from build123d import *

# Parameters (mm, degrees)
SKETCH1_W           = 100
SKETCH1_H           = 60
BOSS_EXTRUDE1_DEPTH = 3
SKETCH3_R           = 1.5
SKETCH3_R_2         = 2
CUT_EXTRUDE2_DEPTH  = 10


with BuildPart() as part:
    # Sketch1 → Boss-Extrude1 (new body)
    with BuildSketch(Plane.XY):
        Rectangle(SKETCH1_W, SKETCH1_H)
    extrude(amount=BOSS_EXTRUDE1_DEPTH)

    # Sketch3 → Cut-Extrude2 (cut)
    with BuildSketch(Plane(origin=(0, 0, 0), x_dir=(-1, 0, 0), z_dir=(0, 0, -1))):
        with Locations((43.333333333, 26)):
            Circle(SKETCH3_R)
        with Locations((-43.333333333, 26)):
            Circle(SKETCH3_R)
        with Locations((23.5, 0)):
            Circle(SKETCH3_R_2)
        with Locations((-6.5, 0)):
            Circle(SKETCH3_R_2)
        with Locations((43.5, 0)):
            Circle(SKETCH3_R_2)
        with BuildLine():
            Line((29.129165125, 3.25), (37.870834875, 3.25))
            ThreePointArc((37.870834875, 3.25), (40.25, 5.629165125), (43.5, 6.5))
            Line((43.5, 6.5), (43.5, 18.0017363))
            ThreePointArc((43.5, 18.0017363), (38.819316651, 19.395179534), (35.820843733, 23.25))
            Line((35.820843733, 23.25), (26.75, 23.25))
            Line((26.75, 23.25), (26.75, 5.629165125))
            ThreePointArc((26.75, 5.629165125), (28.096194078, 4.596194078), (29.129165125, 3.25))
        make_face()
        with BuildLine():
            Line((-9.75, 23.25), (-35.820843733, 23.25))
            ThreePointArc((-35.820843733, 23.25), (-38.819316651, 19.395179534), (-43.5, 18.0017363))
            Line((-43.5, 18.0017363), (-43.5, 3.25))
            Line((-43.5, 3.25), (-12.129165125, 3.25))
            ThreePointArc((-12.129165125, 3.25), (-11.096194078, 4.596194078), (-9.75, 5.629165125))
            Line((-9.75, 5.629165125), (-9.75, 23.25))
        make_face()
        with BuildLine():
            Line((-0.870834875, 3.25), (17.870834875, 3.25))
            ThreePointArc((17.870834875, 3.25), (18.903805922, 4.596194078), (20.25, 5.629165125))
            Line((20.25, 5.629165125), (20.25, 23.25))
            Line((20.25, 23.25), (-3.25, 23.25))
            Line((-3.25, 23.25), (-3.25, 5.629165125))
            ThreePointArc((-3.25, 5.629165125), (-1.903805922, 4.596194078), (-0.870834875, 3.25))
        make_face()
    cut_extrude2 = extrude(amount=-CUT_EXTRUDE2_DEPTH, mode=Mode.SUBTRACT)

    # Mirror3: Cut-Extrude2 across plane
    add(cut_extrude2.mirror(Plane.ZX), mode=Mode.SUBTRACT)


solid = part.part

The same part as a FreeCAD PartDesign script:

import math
import FreeCAD as App
import Part
import Sketcher
from FreeCAD import Vector
Q = App.Units.Quantity

doc = App.newDocument("Part")
params = doc.addObject("Spreadsheet::Sheet", "Params")
for row, (alias, value) in enumerate([
    ("sketch1_width", "100 mm"),
    ("sketch1_height", "60 mm"),
    ("pad1_length", "3 mm"),
    ("sketch2_diameter", "3 mm"),
    ("sketch2_diameter2", "4 mm"),
    ("sketch2_radius", "8 mm"),
    ("sketch2_radius2", "6.5 mm"),
    ("sketch2_width", "23.5 mm"),
    ("pocket1_length", "10 mm"),
], start=1):
    params.set(f"A{row}", alias)
    params.set(f"B{row}", "=" + value)
    params.setAlias(f"B{row}", alias)

body = doc.addObject("PartDesign::Body", "Body")

sketch1 = body.newObject("Sketcher::SketchObject", "Sketch")
sketch1.AttachmentSupport = (doc.getObject("XY_Plane"), [""])
sketch1.MapMode = "FlatFace"
sketch1.addGeometry([
    Part.LineSegment(Vector(-50, 30, 0), Vector(-50, -30, 0)),
    Part.LineSegment(Vector(-50, -30, 0), Vector(50, -30, 0)),
    Part.LineSegment(Vector(50, -30, 0), Vector(50, 30, 0)),
    Part.LineSegment(Vector(50, 30, 0), Vector(-50, 30, 0)),
], False)
sketch1.addConstraint([
    Sketcher.Constraint("Coincident", 0, 2, 1, 1),
    Sketcher.Constraint("Coincident", 1, 2, 2, 1),
    Sketcher.Constraint("Coincident", 2, 2, 3, 1),
    Sketcher.Constraint("Coincident", 3, 2, 0, 1),
    Sketcher.Constraint("Vertical", 0),
    Sketcher.Constraint("Horizontal", 1),
    Sketcher.Constraint("Vertical", 2),
    Sketcher.Constraint("Horizontal", 3),
    Sketcher.Constraint("Symmetric", 0, 2, 2, 2, -1, 1),
    Sketcher.Constraint("DistanceX", 1, 1, 1, 2, Q("100 mm")),
    Sketcher.Constraint("DistanceY", 0, 2, 0, 1, Q("60 mm")),
])
sketch1.setExpression("Constraints[9]", "Params.sketch1_width")
sketch1.setExpression("Constraints[10]", "Params.sketch1_height")
pad1 = body.newObject("PartDesign::Pad", "Pad")
pad1.Profile = sketch1
pad1.setExpression("Length", "Params.pad1_length")

sketch2 = body.newObject("Sketcher::SketchObject", "Sketch001")
sketch2.AttachmentSupport = (doc.getObject("XY_Plane"), [""])
sketch2.MapMode = "FlatFace"
sketch2.addGeometry([
    Part.Circle(Vector(-43.3, 26, 0), Vector(0, 0, 1), 1.5),
    Part.Circle(Vector(43.3, 26, 0), Vector(0, 0, 1), 1.5),
    Part.Circle(Vector(-23.5, 0, 0), Vector(0, 0, 1), 2),
    Part.Circle(Vector(6.5, 0, 0), Vector(0, 0, 1), 2),
    Part.Circle(Vector(-43.5, 0, 0), Vector(0, 0, 1), 2),
    Part.LineSegment(Vector(-29.1, 3.2, 0), Vector(-37.9, 3.2, 0)),
    Part.ArcOfCircle(Part.Circle(Vector(-43.5, 0, 0), Vector(0, 0, 1), 6.5), math.radians(30), math.radians(90)),
    Part.LineSegment(Vector(-43.5, 6.5, 0), Vector(-43.5, 18, 0)),
    Part.ArcOfCircle(Part.Circle(Vector(-43.3, 26, 0), Vector(0, 0, 1), 8), math.radians(-91), math.radians(-20)),
    Part.LineSegment(Vector(-35.8, 23.2, 0), Vector(-26.8, 23.2, 0)),
    Part.LineSegment(Vector(-26.8, 23.2, 0), Vector(-26.8, 5.6, 0)),
    Part.ArcOfCircle(Part.Circle(Vector(-23.5, 0, 0), Vector(0, 0, 1), 6.5), math.radians(120), math.radians(150)),
    Part.LineSegment(Vector(9.8, 23.2, 0), Vector(35.8, 23.2, 0)),
    Part.ArcOfCircle(Part.Circle(Vector(43.3, 26, 0), Vector(0, 0, 1), 8), math.radians(-160), math.radians(-89)),
    Part.LineSegment(Vector(43.5, 18, 0), Vector(43.5, 3.2, 0)),
    Part.LineSegment(Vector(43.5, 3.2, 0), Vector(12.1, 3.2, 0)),
    Part.ArcOfCircle(Part.Circle(Vector(6.5, 0, 0), Vector(0, 0, 1), 6.5), math.radians(30), math.radians(60)),
    Part.LineSegment(Vector(9.8, 5.6, 0), Vector(9.8, 23.2, 0)),
    Part.LineSegment(Vector(0.9, 3.2, 0), Vector(-17.9, 3.2, 0)),
    Part.ArcOfCircle(Part.Circle(Vector(-23.5, 0, 0), Vector(0, 0, 1), 6.5), math.radians(30), math.radians(60)),
    Part.LineSegment(Vector(-20.2, 5.6, 0), Vector(-20.2, 23.2, 0)),
    Part.LineSegment(Vector(-20.2, 23.2, 0), Vector(3.2, 23.2, 0)),
    Part.LineSegment(Vector(3.2, 23.2, 0), Vector(3.2, 5.6, 0)),
    Part.ArcOfCircle(Part.Circle(Vector(6.5, 0, 0), Vector(0, 0, 1), 6.5), math.radians(120), math.radians(150)),
], False)
sketch2.addConstraint([
    Sketcher.Constraint("Coincident", 5, 2, 6, 1),
    Sketcher.Constraint("Coincident", 6, 2, 7, 1),
    Sketcher.Constraint("Coincident", 7, 2, 8, 1),
    Sketcher.Constraint("Coincident", 8, 2, 9, 1),
    Sketcher.Constraint("Coincident", 9, 2, 10, 1),
    Sketcher.Constraint("Coincident", 10, 2, 11, 1),
    Sketcher.Constraint("Coincident", 11, 2, 5, 1),
    Sketcher.Constraint("Coincident", 12, 2, 13, 1),
    Sketcher.Constraint("Coincident", 13, 2, 14, 1),
    Sketcher.Constraint("Coincident", 14, 2, 15, 1),
    Sketcher.Constraint("Coincident", 15, 2, 16, 1),
    Sketcher.Constraint("Coincident", 16, 2, 17, 1),
    Sketcher.Constraint("Coincident", 17, 2, 12, 1),
    Sketcher.Constraint("Coincident", 18, 2, 19, 1),
    Sketcher.Constraint("Coincident", 19, 2, 20, 1),
    Sketcher.Constraint("Coincident", 20, 2, 21, 1),
    Sketcher.Constraint("Coincident", 21, 2, 22, 1),
    Sketcher.Constraint("Coincident", 22, 2, 23, 1),
    Sketcher.Constraint("Coincident", 23, 2, 18, 1),
    Sketcher.Constraint("Horizontal", 5),
    Sketcher.Constraint("Vertical", 7),
    Sketcher.Constraint("Horizontal", 9),
    Sketcher.Constraint("Vertical", 10),
    Sketcher.Constraint("Horizontal", 12),
    Sketcher.Constraint("Vertical", 14),
    Sketcher.Constraint("Horizontal", 15),
    Sketcher.Constraint("Vertical", 17),
    Sketcher.Constraint("Horizontal", 18),
    Sketcher.Constraint("Vertical", 20),
    Sketcher.Constraint("Horizontal", 21),
    Sketcher.Constraint("Vertical", 22),
    Sketcher.Constraint("Coincident", 6, 3, 4, 3),
    Sketcher.Constraint("Coincident", 8, 3, 0, 3),
    Sketcher.Constraint("Coincident", 11, 3, 2, 3),
    Sketcher.Constraint("Coincident", 13, 3, 1, 3),
    Sketcher.Constraint("Coincident", 16, 3, 3, 3),
    Sketcher.Constraint("Coincident", 19, 3, 2, 3),
    Sketcher.Constraint("Coincident", 23, 3, 3, 3),
    Sketcher.Constraint("Equal", 0, 1),
    Sketcher.Constraint("Equal", 2, 3),
    Sketcher.Constraint("Equal", 3, 4),
    Sketcher.Constraint("Equal", 6, 11),
    Sketcher.Constraint("Equal", 8, 13),
    Sketcher.Constraint("Equal", 11, 16),
    Sketcher.Constraint("Equal", 16, 19),
    Sketcher.Constraint("Equal", 19, 23),
    Sketcher.Constraint("Symmetric", 0, 3, 1, 3, -2),
    Sketcher.Constraint("PointOnObject", 2, 3, -1),
    Sketcher.Constraint("PointOnObject", 3, 3, -1),
    Sketcher.Constraint("PointOnObject", 4, 3, -1),
    Sketcher.Constraint("Horizontal", 9, 2, 12, 2),
    Sketcher.Constraint("Horizontal", 7, 2, 13, 2),
    Sketcher.Constraint("Horizontal", 11, 2, 14, 2),
    Sketcher.Constraint("Horizontal", 10, 2, 16, 2),
    Sketcher.Constraint("Horizontal", 15, 2, 18, 2),
    Sketcher.Constraint("Horizontal", 16, 2, 19, 2),
    Sketcher.Constraint("Horizontal", 17, 2, 20, 2),
    Sketcher.Constraint("Horizontal", 19, 2, 22, 2),
    Sketcher.Constraint("Vertical", 4, 3, 6, 2),
    Sketcher.Constraint("Diameter", 0, Q("3 mm")),
    Sketcher.Constraint("Diameter", 2, Q("4 mm")),
    Sketcher.Constraint("Radius", 8, Q("8 mm")),
    Sketcher.Constraint("Radius", 6, Q("6.5 mm")),
    Sketcher.Constraint("DistanceX", 21, 1, 21, 2, Q("23.5 mm")),
    Sketcher.Constraint("DistanceY", -1, 1, 0, 3, Q("26 mm")),
    Sketcher.Constraint("DistanceX", 2, 3, 3, 3, Q("30 mm")),
    Sketcher.Constraint("DistanceX", 4, 3, 2, 3, Q("20 mm")),
    Sketcher.Constraint("DistanceY", 5, 2, 8, 2, Q("20 mm")),
    Sketcher.Constraint("DistanceX", 16, 3, 13, 2, Q("37 mm")),
    Sketcher.Constraint("DistanceY", -1, 1, 5, 2, Q("3.25 mm")),
    Sketcher.Constraint("DistanceX", 9, 1, 9, 2, Q("9.070844 mm")),
])
sketch2.setExpression("Constraints[59]", "Params.sketch2_diameter")
sketch2.setExpression("Constraints[60]", "Params.sketch2_diameter2")
sketch2.setExpression("Constraints[61]", "Params.sketch2_radius")
sketch2.setExpression("Constraints[62]", "Params.sketch2_radius2")
sketch2.setExpression("Constraints[63]", "Params.sketch2_width")
pocket1 = body.newObject("PartDesign::Pocket", "Pocket")
pocket1.Profile = sketch2
pocket1.setExpression("Length", "Params.pocket1_length")
pocket1.Reversed = True
doc.recompute()

mirrored = body.newObject("PartDesign::Mirrored", "Mirrored")
mirrored.Originals = [pocket1]
mirrored.MirrorPlane = (doc.getObject("XZ_Plane"), [""])
body.Tip = mirrored

doc.recompute()
